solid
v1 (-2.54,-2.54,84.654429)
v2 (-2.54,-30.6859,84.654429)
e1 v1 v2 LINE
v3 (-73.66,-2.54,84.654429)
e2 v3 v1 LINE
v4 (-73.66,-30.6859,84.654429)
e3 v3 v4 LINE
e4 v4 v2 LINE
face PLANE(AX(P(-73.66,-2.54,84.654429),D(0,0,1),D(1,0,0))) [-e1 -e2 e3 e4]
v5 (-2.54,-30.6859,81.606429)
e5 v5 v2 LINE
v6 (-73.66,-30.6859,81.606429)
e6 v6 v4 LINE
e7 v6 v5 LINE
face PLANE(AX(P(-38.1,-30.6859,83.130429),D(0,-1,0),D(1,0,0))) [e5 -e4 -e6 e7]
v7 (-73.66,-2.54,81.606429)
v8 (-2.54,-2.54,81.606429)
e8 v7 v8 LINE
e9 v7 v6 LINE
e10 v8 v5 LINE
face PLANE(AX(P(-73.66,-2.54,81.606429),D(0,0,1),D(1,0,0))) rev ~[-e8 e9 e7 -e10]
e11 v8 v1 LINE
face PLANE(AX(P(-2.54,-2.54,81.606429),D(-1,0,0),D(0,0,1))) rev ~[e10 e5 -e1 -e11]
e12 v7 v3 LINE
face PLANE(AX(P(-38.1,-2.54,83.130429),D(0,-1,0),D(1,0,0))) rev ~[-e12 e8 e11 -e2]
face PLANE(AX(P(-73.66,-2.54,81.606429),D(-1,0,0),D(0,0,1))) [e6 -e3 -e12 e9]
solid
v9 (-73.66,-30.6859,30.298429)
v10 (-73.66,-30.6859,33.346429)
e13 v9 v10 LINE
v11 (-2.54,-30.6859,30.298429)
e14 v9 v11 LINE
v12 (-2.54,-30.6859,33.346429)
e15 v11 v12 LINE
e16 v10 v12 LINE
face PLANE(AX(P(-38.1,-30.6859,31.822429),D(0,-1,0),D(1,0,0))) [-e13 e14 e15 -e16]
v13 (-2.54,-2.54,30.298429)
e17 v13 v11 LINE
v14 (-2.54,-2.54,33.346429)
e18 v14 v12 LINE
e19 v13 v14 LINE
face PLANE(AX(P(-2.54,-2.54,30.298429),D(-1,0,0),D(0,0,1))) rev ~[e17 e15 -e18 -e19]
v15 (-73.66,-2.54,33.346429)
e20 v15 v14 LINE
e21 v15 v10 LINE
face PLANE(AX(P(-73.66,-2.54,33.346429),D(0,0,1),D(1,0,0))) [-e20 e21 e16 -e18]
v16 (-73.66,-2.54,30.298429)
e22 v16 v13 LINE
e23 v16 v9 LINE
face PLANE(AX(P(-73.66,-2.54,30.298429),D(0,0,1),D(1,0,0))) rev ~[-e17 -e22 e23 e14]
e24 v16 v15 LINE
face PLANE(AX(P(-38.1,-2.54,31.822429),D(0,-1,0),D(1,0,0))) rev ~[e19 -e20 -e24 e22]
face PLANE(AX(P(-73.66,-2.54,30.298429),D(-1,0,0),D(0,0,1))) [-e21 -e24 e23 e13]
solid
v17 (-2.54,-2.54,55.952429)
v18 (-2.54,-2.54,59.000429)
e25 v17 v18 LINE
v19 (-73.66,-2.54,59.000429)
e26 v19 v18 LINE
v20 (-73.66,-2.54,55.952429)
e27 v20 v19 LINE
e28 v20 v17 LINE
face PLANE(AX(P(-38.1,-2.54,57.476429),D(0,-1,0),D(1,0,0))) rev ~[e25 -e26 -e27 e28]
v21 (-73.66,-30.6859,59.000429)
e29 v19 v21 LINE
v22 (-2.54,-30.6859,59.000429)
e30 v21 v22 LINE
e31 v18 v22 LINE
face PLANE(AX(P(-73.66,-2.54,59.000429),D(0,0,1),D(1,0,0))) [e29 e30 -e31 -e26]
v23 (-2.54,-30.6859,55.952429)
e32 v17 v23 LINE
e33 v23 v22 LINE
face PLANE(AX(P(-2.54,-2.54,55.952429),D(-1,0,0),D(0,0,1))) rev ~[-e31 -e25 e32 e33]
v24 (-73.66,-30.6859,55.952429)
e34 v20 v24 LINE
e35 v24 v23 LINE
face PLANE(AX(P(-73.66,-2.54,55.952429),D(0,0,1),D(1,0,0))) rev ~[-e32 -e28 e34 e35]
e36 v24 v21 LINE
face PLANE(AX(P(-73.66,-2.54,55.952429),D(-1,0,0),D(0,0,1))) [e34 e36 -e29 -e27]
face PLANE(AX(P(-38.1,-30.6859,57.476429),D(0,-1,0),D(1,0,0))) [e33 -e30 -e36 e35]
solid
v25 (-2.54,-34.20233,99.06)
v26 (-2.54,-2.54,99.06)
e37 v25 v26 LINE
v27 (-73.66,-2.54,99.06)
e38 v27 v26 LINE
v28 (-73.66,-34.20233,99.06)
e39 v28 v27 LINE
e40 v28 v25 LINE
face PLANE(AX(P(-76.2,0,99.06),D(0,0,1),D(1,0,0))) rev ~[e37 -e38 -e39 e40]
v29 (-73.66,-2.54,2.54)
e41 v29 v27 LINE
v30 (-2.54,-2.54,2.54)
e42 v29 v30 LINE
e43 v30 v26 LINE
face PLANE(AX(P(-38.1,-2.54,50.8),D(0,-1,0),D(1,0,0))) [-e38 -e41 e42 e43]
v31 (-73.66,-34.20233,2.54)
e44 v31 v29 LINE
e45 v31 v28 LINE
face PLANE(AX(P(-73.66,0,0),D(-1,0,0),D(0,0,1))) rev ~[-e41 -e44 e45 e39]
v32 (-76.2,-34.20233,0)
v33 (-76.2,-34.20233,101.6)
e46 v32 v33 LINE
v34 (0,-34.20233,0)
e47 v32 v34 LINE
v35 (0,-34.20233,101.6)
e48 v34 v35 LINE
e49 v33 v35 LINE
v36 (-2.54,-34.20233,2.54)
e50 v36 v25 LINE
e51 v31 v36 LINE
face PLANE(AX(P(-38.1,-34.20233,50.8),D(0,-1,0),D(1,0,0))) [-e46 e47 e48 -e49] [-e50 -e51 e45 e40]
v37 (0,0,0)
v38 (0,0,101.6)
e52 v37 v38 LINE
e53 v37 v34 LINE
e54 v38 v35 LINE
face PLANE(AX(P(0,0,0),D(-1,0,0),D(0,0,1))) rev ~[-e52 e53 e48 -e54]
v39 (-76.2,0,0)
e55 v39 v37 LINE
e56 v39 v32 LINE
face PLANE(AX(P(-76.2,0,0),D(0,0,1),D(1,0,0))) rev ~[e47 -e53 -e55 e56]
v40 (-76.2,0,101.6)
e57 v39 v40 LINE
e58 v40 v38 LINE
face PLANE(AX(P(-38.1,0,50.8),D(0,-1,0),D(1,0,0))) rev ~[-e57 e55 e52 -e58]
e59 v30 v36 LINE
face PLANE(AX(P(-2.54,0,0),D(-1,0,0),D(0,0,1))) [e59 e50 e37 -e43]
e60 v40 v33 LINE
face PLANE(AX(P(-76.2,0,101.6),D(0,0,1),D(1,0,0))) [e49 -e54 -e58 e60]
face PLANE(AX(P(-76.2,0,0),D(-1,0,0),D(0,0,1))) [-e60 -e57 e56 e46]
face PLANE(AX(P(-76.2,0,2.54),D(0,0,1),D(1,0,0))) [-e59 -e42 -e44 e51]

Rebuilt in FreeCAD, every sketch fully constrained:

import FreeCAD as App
import Part
import Sketcher
Q = App.Units.Quantity


def faces_at(feature, points):
    """Names of the faces that lie closest to the given points."""
    faces = feature.Shape.Faces
    near = lambda p: min(range(len(faces)), key=lambda i: faces[i].distToShape(Part.Vertex(*p))[0])
    return sorted({f"Face{near(p) + 1}" for p in points})

doc = App.newDocument("Part")
body = doc.addObject("PartDesign::Body", "Body")

sketch1 = body.newObject("Sketcher::SketchObject", "Sketch")
sketch1.AttachmentSupport = (doc.getObject("XZ_Plane"), [""])
sketch1.MapMode = "FlatFace"
sketch1.addGeometry(Part.LineSegment(App.Vector(-76.2, 101.6, 0), App.Vector(-76.2, 0, 0)), False)
sketch1.addGeometry(Part.LineSegment(App.Vector(-76.2, 0, 0), App.Vector(0, 0, 0)), False)
sketch1.addGeometry(Part.LineSegment(App.Vector(0, 0, 0), App.Vector(0, 101.6, 0)), False)
sketch1.addGeometry(Part.LineSegment(App.Vector(0, 101.6, 0), App.Vector(-76.2, 101.6, 0)), False)
sketch1.addConstraint(Sketcher.Constraint("Coincident", 0, 2, 1, 1))
sketch1.addConstraint(Sketcher.Constraint("Coincident", 1, 2, 2, 1))
sketch1.addConstraint(Sketcher.Constraint("Coincident", 2, 2, 3, 1))
sketch1.addConstraint(Sketcher.Constraint("Coincident", 3, 2, 0, 1))
sketch1.addConstraint(Sketcher.Constraint("Vertical", 0))
sketch1.addConstraint(Sketcher.Constraint("Horizontal", 1))
sketch1.addConstraint(Sketcher.Constraint("Vertical", 2))
sketch1.addConstraint(Sketcher.Constraint("Horizontal", 3))
sketch1.addConstraint(Sketcher.Constraint("Coincident", 1, 2, -1, 1))
sketch1.addConstraint(Sketcher.Constraint("DistanceX", 1, 1, 1, 2, Q("3 in")))
sketch1.addConstraint(Sketcher.Constraint("DistanceY", 0, 2, 0, 1, Q("4 in")))
pad1 = body.newObject("PartDesign::Pad", "Pad")
pad1.Profile = sketch1
pad1.Length = 34.20233
doc.recompute()

thickness = body.newObject("PartDesign::Thickness", "Thickness")
thickness.Base = (pad1, faces_at(pad1, [(-38.1, -34.202, 50.8)]))
thickness.Value = Q("0.1 in")
thickness.Reversed = True
thickness.Join = "Arc"
body2 = doc.addObject("PartDesign::Body", "Body001")
body2.AllowCompound = True

sketch2 = body2.newObject("Sketcher::SketchObject", "Sketch001")
sketch2.AttachmentSupport = (doc.getObject("XZ_Plane001"), [""])
sketch2.MapMode = "FlatFace"
sketch2.AttachmentOffset = App.Placement(App.Vector(0, 0, 0.1 * 25.4), App.Rotation())
sketch2.addGeometry(Part.LineSegment(App.Vector(-73.66, 59.000429, 0), App.Vector(-73.66, 55.952429, 0)), False)
sketch2.addGeometry(Part.LineSegment(App.Vector(-73.66, 55.952429, 0), App.Vector(-2.54, 55.952429, 0)), False)
sketch2.addGeometry(Part.LineSegment(App.Vector(-2.54, 55.952429, 0), App.Vector(-2.54, 59.000429, 0)), False)
sketch2.addGeometry(Part.LineSegment(App.Vector(-2.54, 59.000429, 0), App.Vector(-73.66, 59.000429, 0)), False)
sketch2.addGeometry(Part.LineSegment(App.Vector(-73.66, 33.346429, 0), App.Vector(-73.66, 30.298429, 0)), False)
sketch2.addGeometry(Part.LineSegment(App.Vector(-73.66, 30.298429, 0), App.Vector(-2.54, 30.298429, 0)), False)
sketch2.addGeometry(Part.LineSegment(App.Vector(-2.54, 30.298429, 0), App.Vector(-2.54, 33.346429, 0)), False)
sketch2.addGeometry(Part.LineSegment(App.Vector(-2.54, 33.346429, 0), App.Vector(-73.66, 33.346429, 0)), False)
sketch2.addGeometry(Part.LineSegment(App.Vector(-73.66, 84.654429, 0), App.Vector(-73.66, 81.606429, 0)), False)
sketch2.addGeometry(Part.LineSegment(App.Vector(-73.66, 81.606429, 0), App.Vector(-2.54, 81.606429, 0)), False)
sketch2.addGeometry(Part.LineSegment(App.Vector(-2.54, 81.606429, 0), App.Vector(-2.54, 84.654429, 0)), False)
sketch2.addGeometry(Part.LineSegment(App.Vector(-2.54, 84.654429, 0), App.Vector(-73.66, 84.654429, 0)), False)
sketch2.addConstraint(Sketcher.Constraint("Coincident", 0, 2, 1, 1))
sketch2.addConstraint(Sketcher.Constraint("Coincident", 1, 2, 2, 1))
sketch2.addConstraint(Sketcher.Constraint("Coincident", 2, 2, 3, 1))
sketch2.addConstraint(Sketcher.Constraint("Coincident", 3, 2, 0, 1))
sketch2.addConstraint(Sketcher.Constraint("Coincident", 4, 2, 5, 1))
sketch2.addConstraint(Sketcher.Constraint("Coincident", 5, 2, 6, 1))
sketch2.addConstraint(Sketcher.Constraint("Coincident", 6, 2, 7, 1))
sketch2.addConstraint(Sketcher.Constraint("Coincident", 7, 2, 4, 1))
sketch2.addConstraint(Sketcher.Constraint("Coincident", 8, 2, 9, 1))
sketch2.addConstraint(Sketcher.Constraint("Coincident", 9, 2, 10, 1))
sketch2.addConstraint(Sketcher.Constraint("Coincident", 10, 2, 11, 1))
sketch2.addConstraint(Sketcher.Constraint("Coincident", 11, 2, 8, 1))
sketch2.addConstraint(Sketcher.Constraint("Vertical", 0))
sketch2.addConstraint(Sketcher.Constraint("Horizontal", 1))
sketch2.addConstraint(Sketcher.Constraint("Vertical", 2))
sketch2.addConstraint(Sketcher.Constraint("Horizontal", 3))
sketch2.addConstraint(Sketcher.Constraint("Vertical", 4))
sketch2.addConstraint(Sketcher.Constraint("Horizontal", 5))
sketch2.addConstraint(Sketcher.Constraint("Vertical", 6))
sketch2.addConstraint(Sketcher.Constraint("Horizontal", 7))
sketch2.addConstraint(Sketcher.Constraint("Vertical", 8))
sketch2.addConstraint(Sketcher.Constraint("Horizontal", 9))
sketch2.addConstraint(Sketcher.Constraint("Vertical", 10))
sketch2.addConstraint(Sketcher.Constraint("Horizontal", 11))
sketch2.addConstraint(Sketcher.Constraint("Vertical", 3, 2, 4, 2))
sketch2.addConstraint(Sketcher.Constraint("Vertical", 2, 2, 5, 2))
sketch2.addConstraint(Sketcher.Constraint("Vertical", 7, 2, 8, 2))
sketch2.addConstraint(Sketcher.Constraint("Vertical", 6, 2, 9, 2))
sketch2.addConstraint(Sketcher.Constraint("Equal", 2, 4))
sketch2.addConstraint(Sketcher.Constraint("Equal", 6, 8))
sketch2.addConstraint(Sketcher.Constraint("DistanceX", 1, 1, 1, 2, Q("2.8 in")))
sketch2.addConstraint(Sketcher.Constraint("DistanceY", 0, 2, 0, 1, Q("0.12 in")))
sketch2.addConstraint(Sketcher.Constraint("DistanceX", 0, 2, -1, 1, Q("2.9 in")))
sketch2.addConstraint(Sketcher.Constraint("DistanceY", 7, 2, 8, 2, Q("1.9 in")))
sketch2.addConstraint(Sketcher.Constraint("DistanceY", 4, 2, 0, 2, Q("1.01 in")))
sketch2.addConstraint(Sketcher.Constraint("DistanceY", -1, 1, 0, 2, 55.952429))
pad2 = body2.newObject("PartDesign::Pad", "Pad001")
pad2.Profile = sketch2
pad2.Length = 28.1459

doc.recompute()
